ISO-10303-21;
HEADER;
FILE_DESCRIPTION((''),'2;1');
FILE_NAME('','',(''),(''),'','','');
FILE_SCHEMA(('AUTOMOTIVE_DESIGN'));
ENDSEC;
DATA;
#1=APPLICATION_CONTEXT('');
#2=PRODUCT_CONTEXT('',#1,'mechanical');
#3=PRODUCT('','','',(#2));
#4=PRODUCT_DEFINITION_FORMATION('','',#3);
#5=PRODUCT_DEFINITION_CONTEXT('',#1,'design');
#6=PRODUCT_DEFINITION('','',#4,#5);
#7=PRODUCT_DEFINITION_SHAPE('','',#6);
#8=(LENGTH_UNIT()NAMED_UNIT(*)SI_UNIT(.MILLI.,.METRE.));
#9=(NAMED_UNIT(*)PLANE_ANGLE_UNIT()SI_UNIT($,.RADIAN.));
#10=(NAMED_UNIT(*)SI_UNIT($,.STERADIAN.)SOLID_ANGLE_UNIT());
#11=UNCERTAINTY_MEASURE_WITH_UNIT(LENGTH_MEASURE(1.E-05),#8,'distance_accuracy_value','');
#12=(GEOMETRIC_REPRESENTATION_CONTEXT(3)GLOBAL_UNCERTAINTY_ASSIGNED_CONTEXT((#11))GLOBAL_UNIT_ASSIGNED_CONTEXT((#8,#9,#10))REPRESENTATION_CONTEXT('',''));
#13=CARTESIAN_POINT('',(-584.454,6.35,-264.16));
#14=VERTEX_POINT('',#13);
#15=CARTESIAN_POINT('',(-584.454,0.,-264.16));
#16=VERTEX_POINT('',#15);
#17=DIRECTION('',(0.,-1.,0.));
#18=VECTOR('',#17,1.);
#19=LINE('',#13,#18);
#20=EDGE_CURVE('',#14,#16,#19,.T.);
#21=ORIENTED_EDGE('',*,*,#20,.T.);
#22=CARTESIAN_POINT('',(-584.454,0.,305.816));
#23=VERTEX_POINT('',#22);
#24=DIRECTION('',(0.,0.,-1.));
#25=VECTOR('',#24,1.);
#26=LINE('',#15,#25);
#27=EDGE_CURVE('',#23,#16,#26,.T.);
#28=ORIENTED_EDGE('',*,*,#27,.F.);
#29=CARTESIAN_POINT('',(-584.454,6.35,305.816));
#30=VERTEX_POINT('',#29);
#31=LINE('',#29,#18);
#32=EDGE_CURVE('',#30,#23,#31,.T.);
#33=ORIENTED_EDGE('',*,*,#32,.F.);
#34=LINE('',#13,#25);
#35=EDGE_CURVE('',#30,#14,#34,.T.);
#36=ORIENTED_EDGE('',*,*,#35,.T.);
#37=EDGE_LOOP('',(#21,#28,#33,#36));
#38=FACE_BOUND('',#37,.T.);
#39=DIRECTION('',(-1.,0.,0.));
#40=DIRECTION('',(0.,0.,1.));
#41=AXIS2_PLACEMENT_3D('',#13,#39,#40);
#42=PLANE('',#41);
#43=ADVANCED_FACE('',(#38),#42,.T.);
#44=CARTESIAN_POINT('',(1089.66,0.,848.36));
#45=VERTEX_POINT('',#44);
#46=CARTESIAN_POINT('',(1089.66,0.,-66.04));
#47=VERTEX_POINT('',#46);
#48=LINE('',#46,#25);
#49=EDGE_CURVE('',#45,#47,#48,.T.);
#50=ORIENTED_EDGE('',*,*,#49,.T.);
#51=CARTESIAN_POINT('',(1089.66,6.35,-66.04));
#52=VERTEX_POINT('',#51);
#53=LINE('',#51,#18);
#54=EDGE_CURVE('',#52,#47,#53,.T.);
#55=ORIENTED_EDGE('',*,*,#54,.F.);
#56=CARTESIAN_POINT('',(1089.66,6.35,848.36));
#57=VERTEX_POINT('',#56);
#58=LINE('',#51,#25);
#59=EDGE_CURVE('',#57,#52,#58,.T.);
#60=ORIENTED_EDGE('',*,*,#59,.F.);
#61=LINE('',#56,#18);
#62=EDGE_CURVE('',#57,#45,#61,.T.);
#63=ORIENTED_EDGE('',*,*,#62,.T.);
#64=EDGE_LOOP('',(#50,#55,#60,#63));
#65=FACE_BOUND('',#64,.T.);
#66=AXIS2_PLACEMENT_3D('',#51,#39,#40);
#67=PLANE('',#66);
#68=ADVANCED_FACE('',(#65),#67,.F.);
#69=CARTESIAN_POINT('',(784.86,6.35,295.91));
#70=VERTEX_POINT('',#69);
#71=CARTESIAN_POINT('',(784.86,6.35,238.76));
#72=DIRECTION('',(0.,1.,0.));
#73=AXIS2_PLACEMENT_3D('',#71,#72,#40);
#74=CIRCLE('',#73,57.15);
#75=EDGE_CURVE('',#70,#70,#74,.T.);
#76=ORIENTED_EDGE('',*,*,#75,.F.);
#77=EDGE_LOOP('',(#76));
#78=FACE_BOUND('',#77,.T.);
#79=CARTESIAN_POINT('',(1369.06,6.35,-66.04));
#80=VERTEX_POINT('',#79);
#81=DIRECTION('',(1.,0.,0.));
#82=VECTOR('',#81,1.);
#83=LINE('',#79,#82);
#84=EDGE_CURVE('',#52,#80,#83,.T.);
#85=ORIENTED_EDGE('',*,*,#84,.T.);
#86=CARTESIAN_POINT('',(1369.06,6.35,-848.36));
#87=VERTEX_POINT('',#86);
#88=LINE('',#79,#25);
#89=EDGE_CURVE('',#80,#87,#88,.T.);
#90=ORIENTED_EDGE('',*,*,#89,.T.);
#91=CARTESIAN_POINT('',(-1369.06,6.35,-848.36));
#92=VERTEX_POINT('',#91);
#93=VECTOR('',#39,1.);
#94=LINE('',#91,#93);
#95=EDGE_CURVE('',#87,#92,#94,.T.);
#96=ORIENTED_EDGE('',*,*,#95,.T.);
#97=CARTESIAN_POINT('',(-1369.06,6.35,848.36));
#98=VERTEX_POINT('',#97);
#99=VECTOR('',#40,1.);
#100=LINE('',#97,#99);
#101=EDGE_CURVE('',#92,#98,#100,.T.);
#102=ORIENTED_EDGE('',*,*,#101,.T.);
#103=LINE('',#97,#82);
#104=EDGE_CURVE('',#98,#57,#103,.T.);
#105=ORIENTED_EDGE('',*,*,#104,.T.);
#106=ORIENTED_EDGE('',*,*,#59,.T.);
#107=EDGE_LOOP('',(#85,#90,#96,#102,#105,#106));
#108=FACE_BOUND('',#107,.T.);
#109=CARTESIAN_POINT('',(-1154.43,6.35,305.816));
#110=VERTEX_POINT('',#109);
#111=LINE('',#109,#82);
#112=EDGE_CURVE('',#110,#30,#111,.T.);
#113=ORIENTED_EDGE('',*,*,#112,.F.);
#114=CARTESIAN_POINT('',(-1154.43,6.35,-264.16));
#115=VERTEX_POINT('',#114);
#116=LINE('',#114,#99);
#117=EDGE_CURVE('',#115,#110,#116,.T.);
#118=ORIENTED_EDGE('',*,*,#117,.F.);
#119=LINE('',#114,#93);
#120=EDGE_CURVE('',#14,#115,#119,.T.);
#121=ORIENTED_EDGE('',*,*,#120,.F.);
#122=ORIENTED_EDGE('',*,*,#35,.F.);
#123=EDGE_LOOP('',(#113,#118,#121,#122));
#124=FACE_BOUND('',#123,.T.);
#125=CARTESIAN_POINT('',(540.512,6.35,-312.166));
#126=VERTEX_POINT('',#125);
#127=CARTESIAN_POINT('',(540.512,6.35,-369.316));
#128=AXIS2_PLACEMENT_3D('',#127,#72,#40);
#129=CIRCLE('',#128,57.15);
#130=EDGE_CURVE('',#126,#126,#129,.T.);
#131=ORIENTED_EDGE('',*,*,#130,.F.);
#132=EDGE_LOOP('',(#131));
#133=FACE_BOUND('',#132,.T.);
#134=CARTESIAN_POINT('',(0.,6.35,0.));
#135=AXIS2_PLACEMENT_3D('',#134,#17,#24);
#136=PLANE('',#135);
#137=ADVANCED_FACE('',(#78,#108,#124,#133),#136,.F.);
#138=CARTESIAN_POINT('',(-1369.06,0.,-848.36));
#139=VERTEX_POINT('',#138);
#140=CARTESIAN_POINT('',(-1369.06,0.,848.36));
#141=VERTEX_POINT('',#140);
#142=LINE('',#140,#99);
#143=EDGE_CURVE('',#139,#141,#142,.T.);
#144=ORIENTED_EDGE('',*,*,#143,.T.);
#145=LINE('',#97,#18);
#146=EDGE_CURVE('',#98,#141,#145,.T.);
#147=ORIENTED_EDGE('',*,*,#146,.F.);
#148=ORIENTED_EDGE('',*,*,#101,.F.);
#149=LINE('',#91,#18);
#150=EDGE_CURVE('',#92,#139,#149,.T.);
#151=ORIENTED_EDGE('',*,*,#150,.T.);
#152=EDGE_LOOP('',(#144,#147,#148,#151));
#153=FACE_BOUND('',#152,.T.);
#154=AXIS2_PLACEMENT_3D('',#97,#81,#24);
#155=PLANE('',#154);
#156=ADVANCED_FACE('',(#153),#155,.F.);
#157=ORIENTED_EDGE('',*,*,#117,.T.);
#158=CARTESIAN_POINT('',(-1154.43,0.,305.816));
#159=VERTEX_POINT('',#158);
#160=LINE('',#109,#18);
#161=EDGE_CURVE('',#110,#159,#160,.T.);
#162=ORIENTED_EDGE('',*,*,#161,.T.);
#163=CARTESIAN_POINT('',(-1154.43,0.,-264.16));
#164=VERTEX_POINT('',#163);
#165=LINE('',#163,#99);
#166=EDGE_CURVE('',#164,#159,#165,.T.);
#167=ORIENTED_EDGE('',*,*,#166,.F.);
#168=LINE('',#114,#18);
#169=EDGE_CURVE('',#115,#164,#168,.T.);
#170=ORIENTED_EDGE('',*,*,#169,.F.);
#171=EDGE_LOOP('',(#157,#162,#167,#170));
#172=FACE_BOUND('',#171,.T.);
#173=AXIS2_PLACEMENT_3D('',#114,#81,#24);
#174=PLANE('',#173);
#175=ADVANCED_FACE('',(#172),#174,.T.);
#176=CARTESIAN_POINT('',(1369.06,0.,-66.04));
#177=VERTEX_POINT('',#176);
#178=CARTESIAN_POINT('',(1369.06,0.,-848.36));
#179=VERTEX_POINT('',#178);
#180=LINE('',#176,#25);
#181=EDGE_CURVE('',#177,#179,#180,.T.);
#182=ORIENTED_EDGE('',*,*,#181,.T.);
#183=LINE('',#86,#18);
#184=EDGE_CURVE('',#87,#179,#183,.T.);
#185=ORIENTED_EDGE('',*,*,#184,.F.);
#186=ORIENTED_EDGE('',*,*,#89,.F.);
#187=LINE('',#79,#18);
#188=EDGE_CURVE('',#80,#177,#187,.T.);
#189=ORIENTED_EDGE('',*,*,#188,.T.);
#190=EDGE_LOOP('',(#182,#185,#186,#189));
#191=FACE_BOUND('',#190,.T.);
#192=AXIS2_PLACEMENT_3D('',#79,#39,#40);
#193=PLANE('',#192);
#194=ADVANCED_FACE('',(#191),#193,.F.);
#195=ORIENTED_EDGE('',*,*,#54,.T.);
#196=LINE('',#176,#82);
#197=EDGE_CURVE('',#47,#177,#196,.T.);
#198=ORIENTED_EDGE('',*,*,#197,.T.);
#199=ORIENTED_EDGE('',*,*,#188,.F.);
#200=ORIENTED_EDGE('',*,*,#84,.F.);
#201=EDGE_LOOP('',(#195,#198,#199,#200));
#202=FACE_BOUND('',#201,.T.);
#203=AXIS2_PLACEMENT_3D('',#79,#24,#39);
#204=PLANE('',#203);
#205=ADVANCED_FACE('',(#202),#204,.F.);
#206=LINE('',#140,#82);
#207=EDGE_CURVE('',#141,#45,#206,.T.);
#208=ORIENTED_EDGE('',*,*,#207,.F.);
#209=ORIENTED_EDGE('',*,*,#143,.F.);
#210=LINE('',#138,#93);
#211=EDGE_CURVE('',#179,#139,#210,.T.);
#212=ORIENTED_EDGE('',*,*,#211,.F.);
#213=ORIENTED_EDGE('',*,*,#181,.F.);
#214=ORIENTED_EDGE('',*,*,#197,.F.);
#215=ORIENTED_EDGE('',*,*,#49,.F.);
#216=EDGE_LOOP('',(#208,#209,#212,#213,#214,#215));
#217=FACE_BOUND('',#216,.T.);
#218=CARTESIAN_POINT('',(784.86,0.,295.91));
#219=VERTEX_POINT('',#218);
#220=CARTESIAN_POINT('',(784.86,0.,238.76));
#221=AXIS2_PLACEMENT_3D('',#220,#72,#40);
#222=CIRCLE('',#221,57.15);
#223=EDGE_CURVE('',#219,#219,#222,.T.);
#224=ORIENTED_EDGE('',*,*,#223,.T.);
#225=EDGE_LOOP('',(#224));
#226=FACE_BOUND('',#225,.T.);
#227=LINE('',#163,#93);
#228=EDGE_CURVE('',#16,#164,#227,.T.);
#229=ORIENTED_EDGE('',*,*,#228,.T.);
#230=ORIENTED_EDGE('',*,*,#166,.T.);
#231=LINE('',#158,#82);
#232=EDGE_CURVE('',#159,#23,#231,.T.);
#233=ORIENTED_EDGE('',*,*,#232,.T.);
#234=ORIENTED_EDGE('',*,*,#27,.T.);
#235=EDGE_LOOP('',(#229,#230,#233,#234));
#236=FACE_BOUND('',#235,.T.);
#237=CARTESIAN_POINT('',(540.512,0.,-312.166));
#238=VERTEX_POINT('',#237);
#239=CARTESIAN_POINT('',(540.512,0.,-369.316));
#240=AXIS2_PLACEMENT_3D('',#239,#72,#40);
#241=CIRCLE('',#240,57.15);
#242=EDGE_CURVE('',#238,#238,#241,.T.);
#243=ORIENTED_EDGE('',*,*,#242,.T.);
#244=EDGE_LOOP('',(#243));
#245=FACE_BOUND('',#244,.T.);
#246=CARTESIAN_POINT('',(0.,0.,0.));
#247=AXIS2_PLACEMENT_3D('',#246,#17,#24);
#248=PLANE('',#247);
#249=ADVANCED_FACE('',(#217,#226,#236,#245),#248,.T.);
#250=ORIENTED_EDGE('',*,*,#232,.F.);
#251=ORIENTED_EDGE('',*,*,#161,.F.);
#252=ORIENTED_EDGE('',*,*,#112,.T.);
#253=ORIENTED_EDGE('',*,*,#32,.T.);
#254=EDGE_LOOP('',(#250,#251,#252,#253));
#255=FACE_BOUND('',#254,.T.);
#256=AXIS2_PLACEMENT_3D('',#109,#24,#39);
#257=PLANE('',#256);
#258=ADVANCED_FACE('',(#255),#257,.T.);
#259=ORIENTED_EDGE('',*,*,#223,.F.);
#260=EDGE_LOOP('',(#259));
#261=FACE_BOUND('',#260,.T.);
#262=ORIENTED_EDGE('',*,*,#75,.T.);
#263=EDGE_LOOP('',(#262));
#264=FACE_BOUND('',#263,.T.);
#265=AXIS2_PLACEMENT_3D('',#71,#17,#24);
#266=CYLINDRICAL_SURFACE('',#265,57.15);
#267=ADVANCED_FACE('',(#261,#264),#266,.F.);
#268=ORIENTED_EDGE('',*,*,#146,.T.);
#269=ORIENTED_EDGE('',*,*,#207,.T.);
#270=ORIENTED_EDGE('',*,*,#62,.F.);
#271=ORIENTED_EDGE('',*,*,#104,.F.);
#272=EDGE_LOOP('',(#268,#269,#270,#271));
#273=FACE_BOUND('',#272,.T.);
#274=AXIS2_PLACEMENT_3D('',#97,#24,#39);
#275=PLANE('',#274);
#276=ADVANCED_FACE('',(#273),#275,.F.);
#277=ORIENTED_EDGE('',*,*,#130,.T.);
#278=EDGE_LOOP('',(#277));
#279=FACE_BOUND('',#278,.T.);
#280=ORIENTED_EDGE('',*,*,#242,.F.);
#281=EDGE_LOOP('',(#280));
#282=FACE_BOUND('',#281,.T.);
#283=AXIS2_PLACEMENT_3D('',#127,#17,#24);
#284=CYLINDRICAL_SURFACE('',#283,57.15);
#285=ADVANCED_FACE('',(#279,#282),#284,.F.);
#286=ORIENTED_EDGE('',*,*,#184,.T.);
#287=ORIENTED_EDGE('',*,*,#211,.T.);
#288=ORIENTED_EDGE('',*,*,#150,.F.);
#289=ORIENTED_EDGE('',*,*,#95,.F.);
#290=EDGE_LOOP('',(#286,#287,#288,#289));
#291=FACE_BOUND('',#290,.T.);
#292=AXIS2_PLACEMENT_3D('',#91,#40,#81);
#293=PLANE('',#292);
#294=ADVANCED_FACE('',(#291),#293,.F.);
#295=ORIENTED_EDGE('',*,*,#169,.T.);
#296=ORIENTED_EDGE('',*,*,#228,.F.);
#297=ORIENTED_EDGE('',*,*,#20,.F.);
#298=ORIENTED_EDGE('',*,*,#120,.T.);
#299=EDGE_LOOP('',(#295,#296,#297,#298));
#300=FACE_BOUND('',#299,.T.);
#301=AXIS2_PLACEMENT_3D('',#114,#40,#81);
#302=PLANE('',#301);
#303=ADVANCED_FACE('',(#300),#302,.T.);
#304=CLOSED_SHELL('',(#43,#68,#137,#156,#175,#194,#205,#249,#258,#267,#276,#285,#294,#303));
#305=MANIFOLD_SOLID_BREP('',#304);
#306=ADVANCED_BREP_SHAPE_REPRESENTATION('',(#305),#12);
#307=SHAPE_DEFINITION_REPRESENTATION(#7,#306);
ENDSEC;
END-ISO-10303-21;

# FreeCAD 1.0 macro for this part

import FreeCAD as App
import Part
import Sketcher

V = App.Vector
Q = App.Units.Quantity

doc = App.newDocument("Part")
body = doc.addObject("PartDesign::Body", "Body")

sketch1 = body.newObject("Sketcher::SketchObject", "Sketch")
sketch1.AttachmentSupport = (doc.getObject("XZ_Plane"), [""])
sketch1.MapMode = "FlatFace"
sketch1.addGeometry(Part.LineSegment(V(1089.66, -66.04, 0), V(1369.06, -66.04, 0)), False)
sketch1.addGeometry(Part.LineSegment(V(1369.06, -66.04, 0), V(1369.06, -848.36, 0)), False)
sketch1.addGeometry(Part.LineSegment(V(1369.06, -848.36, 0), V(-1369.06, -848.36, 0)), False)
sketch1.addGeometry(Part.LineSegment(V(-1369.06, -848.36, 0), V(-1369.06, 848.36, 0)), False)
sketch1.addGeometry(Part.LineSegment(V(-1369.06, 848.36, 0), V(1089.66, 848.36, 0)), False)
sketch1.addGeometry(Part.LineSegment(V(1089.66, 848.36, 0), V(1089.66, -66.04, 0)), False)
sketch1.addGeometry(Part.Circle(V(784.86, 238.76, 0), V(0, 0, 1), 57.15), False)
sketch1.addGeometry(Part.LineSegment(V(-1154.43, 305.816, 0), V(-1154.43, -264.16, 0)), False)
sketch1.addGeometry(Part.LineSegment(V(-1154.43, -264.16, 0), V(-584.454, -264.16, 0)), False)
sketch1.addGeometry(Part.LineSegment(V(-584.454, -264.16, 0), V(-584.454, 305.816, 0)), False)
sketch1.addGeometry(Part.LineSegment(V(-584.454, 305.816, 0), V(-1154.43, 305.816, 0)), False)
sketch1.addGeometry(Part.Circle(V(540.512, -369.316, 0), V(0, 0, 1), 57.15), False)
sketch1.addConstraint(Sketcher.Constraint("Coincident", 0, 2, 1, 1))
sketch1.addConstraint(Sketcher.Constraint("Coincident", 1, 2, 2, 1))
sketch1.addConstraint(Sketcher.Constraint("Coincident", 2, 2, 3, 1))
sketch1.addConstraint(Sketcher.Constraint("Coincident", 3, 2, 4, 1))
sketch1.addConstraint(Sketcher.Constraint("Coincident", 4, 2, 5, 1))
sketch1.addConstraint(Sketcher.Constraint("Coincident", 5, 2, 0, 1))
sketch1.addConstraint(Sketcher.Constraint("Coincident", 7, 2, 8, 1))
sketch1.addConstraint(Sketcher.Constraint("Coincident", 8, 2, 9, 1))
sketch1.addConstraint(Sketcher.Constraint("Coincident", 9, 2, 10, 1))
sketch1.addConstraint(Sketcher.Constraint("Coincident", 10, 2, 7, 1))
sketch1.addConstraint(Sketcher.Constraint("Horizontal", 0))
sketch1.addConstraint(Sketcher.Constraint("Vertical", 1))
sketch1.addConstraint(Sketcher.Constraint("Horizontal", 2))
sketch1.addConstraint(Sketcher.Constraint("Vertical", 3))
sketch1.addConstraint(Sketcher.Constraint("Horizontal", 4))
sketch1.addConstraint(Sketcher.Constraint("Vertical", 5))
sketch1.addConstraint(Sketcher.Constraint("Vertical", 7))
sketch1.addConstraint(Sketcher.Constraint("Horizontal", 8))
sketch1.addConstraint(Sketcher.Constraint("Vertical", 9))
sketch1.addConstraint(Sketcher.Constraint("Horizontal", 10))
sketch1.addConstraint(Sketcher.Constraint("Equal", 6, 11))
sketch1.addConstraint(Sketcher.Constraint("Symmetric", 1, 2, 3, 2, -1, 1))
sketch1.addConstraint(Sketcher.Constraint("Equal", 10, 7))
sketch1.addConstraint(Sketcher.Constraint("Diameter", 6, Q("4.5 in")))
sketch1.addConstraint(Sketcher.Constraint("DistanceX", 0, 1, 0, 2, Q("11 in")))
sketch1.addConstraint(Sketcher.Constraint("DistanceY", 5, 2, 5, 1, Q("36 in")))
sketch1.addConstraint(Sketcher.Constraint("DistanceX", 2, 2, 2, 1, Q("107.8 in")))
sketch1.addConstraint(Sketcher.Constraint("DistanceY", 1, 2, 1, 1, Q("30.8 in")))
sketch1.addConstraint(Sketcher.Constraint("DistanceX", 6, 3, 0, 2, Q("23 in")))
sketch1.addConstraint(Sketcher.Constraint("DistanceY", 0, 2, 6, 3, Q("12 in")))
sketch1.addConstraint(Sketcher.Constraint("DistanceY", 2, 2, 7, 2, Q("23 in")))
sketch1.addConstraint(Sketcher.Constraint("DistanceX", 8, 1, 8, 2, Q("22.44 in")))
sketch1.addConstraint(Sketcher.Constraint("DistanceX", -1, 1, 11, 3, Q("21.28 in")))
sketch1.addConstraint(Sketcher.Constraint("DistanceY", 11, 3, -1, 1, Q("14.54 in")))
sketch1.addConstraint(Sketcher.Constraint("DistanceX", 7, 2, -1, 1, Q("45.45 in")))
pad1 = body.newObject("PartDesign::Pad", "Pad")
pad1.Profile = sketch1
pad1.Length = Q("0.25 in")
pad1.Reversed = True

doc.recompute()
